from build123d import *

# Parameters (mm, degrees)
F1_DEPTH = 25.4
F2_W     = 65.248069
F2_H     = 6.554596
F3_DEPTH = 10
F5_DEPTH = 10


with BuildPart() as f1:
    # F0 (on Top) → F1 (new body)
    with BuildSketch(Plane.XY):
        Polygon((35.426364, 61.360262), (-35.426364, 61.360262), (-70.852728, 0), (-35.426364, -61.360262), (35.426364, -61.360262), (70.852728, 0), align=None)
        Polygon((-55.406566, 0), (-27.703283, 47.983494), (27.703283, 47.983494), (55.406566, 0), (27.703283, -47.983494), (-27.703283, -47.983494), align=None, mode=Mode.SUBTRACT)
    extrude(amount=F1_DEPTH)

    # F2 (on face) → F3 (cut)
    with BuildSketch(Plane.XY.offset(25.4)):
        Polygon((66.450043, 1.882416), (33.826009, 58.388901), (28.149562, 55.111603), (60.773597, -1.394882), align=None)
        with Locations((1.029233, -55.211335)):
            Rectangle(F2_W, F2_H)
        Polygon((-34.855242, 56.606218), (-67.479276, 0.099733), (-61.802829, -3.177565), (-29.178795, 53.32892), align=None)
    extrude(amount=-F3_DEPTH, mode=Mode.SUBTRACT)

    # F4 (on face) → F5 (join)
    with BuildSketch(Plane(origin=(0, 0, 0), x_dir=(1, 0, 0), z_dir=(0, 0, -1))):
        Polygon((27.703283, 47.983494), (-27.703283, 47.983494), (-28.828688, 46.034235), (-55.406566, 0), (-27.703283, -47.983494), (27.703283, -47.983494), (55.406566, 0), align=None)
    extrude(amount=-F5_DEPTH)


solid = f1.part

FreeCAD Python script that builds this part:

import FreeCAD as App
import Part
import Sketcher

V = App.Vector
Q = App.Units.Quantity

doc = App.newDocument("Part")
body = doc.addObject("PartDesign::Body", "Body")

# Sketch on XY plane
sketch1 = body.newObject("Sketcher::SketchObject", "Sketch")
sketch1.AttachmentSupport = (doc.getObject("XY_Plane"), [""])
sketch1.MapMode = "FlatFace"
sketch1.addGeometry(Part.LineSegment(V(35.426364, 61.360262, 0), V(-35.426364, 61.360262, 0)), False)
sketch1.addGeometry(Part.LineSegment(V(-35.426364, 61.360262, 0), V(-70.852728, 0, 0)), False)
sketch1.addGeometry(Part.LineSegment(V(-70.852728, 0, 0), V(-35.426364, -61.360262, 0)), False)
sketch1.addGeometry(Part.LineSegment(V(-35.426364, -61.360262, 0), V(35.426364, -61.360262, 0)), False)
sketch1.addGeometry(Part.LineSegment(V(35.426364, -61.360262, 0), V(70.852728, 0, 0)), False)
sketch1.addGeometry(Part.LineSegment(V(70.852728, 0, 0), V(35.426364, 61.360262, 0)), False)
sketch1.addGeometry(Part.LineSegment(V(-27.703283, -47.983494, 0), V(-55.406566, 0, 0)), False)
sketch1.addGeometry(Part.LineSegment(V(-55.406566, 0, 0), V(-27.703283, 47.983494, 0)), False)
sketch1.addGeometry(Part.LineSegment(V(-27.703283, 47.983494, 0), V(27.703283, 47.983494, 0)), False)
sketch1.addGeometry(Part.LineSegment(V(27.703283, 47.983494, 0), V(55.406566, 0, 0)), False)
sketch1.addGeometry(Part.LineSegment(V(55.406566, 0, 0), V(27.703283, -47.983494, 0)), False)
sketch1.addGeometry(Part.LineSegment(V(27.703283, -47.983494, 0), V(-27.703283, -47.983494, 0)), False)
sketch1.addConstraint(Sketcher.Constraint("Coincident", 0, 2, 1, 1))
sketch1.addConstraint(Sketcher.Constraint("Coincident", 1, 2, 2, 1))
sketch1.addConstraint(Sketcher.Constraint("Coincident", 2, 2, 3, 1))
sketch1.addConstraint(Sketcher.Constraint("Coincident", 3, 2, 4, 1))
sketch1.addConstraint(Sketcher.Constraint("Coincident", 4, 2, 5, 1))
sketch1.addConstraint(Sketcher.Constraint("Coincident", 5, 2, 0, 1))
sketch1.addConstraint(Sketcher.Constraint("Coincident", 6, 2, 7, 1))
sketch1.addConstraint(Sketcher.Constraint("Coincident", 7, 2, 8, 1))
sketch1.addConstraint(Sketcher.Constraint("Coincident", 8, 2, 9, 1))
sketch1.addConstraint(Sketcher.Constraint("Coincident", 9, 2, 10, 1))
sketch1.addConstraint(Sketcher.Constraint("Coincident", 10, 2, 11, 1))
sketch1.addConstraint(Sketcher.Constraint("Coincident", 11, 2, 6, 1))
sketch1.addConstraint(Sketcher.Constraint("Horizontal", 0))
sketch1.addConstraint(Sketcher.Constraint("Horizontal", 3))
sketch1.addConstraint(Sketcher.Constraint("Horizontal", 8))
sketch1.addConstraint(Sketcher.Constraint("Horizontal", 11))
sketch1.addConstraint(Sketcher.Constraint("Symmetric", 0, 2, 3, 2, -1, 1))
sketch1.addConstraint(Sketcher.Constraint("Symmetric", 1, 2, 4, 2, -1, 1))
sketch1.addConstraint(Sketcher.Constraint("Symmetric", 6, 2, 9, 2, -1, 1))
sketch1.addConstraint(Sketcher.Constraint("Symmetric", 7, 2, 10, 2, -1, 1))
sketch1.addConstraint(Sketcher.Constraint("PointOnObject", 1, 2, -1))
sketch1.addConstraint(Sketcher.Constraint("PointOnObject", 6, 2, -1))
sketch1.addConstraint(Sketcher.Constraint("Parallel", 2, 5))
sketch1.addConstraint(Sketcher.Constraint("Parallel", 5, 6))
sketch1.addConstraint(Sketcher.Constraint("Parallel", 4, 7))
sketch1.addConstraint(Sketcher.Constraint("Parallel", 6, 9))
sketch1.addConstraint(Sketcher.Constraint("Vertical", 0, 2, 2, 2))
sketch1.addConstraint(Sketcher.Constraint("Angle", 1, Q("-120 deg")))
sketch1.addConstraint(Sketcher.Constraint("DistanceX", 0, 2, 0, 1, Q("70.852728 mm")))
sketch1.addConstraint(Sketcher.Constraint("DistanceX", 6, 2, 0, 2, Q("19.980202 mm")))
sketch1.addConstraint(Sketcher.Constraint("DistanceX", 8, 1, 8, 2, Q("55.406566 mm")))
sketch1.addConstraint(Sketcher.Constraint("DistanceX", 1, 2, -1, 1, Q("70.852728 mm")))
pad1 = body.newObject("PartDesign::Pad", "Pad")
pad1.Profile = sketch1
pad1.Length = 25.4

# Sketch on XY plane
sketch2 = body.newObject("Sketcher::SketchObject", "Sketch001")
sketch2.AttachmentSupport = (doc.getObject("XY_Plane"), [""])
sketch2.MapMode = "FlatFace"
sketch2.AttachmentOffset = App.Placement(V(0, 0, 25.4), App.Rotation())
sketch2.addGeometry(Part.LineSegment(V(66.450043, 1.882416, 0), V(33.826009, 58.388901, 0)), False)
sketch2.addGeometry(Part.LineSegment(V(33.826009, 58.388901, 0), V(28.149562, 55.111603, 0)), False)
sketch2.addGeometry(Part.LineSegment(V(28.149562, 55.111603, 0), V(60.773597, -1.394882, 0)), False)
sketch2.addGeometry(Part.LineSegment(V(60.773597, -1.394882, 0), V(66.450043, 1.882416, 0)), False)
sketch2.addGeometry(Part.LineSegment(V(-31.594801, -51.934037, 0), V(-31.594801, -58.488633, 0)), False)
sketch2.addGeometry(Part.LineSegment(V(-31.594801, -58.488633, 0), V(33.653267, -58.488633, 0)), False)
sketch2.addGeometry(Part.LineSegment(V(33.653267, -58.488633, 0), V(33.653267, -51.934037, 0)), False)
sketch2.addGeometry(Part.LineSegment(V(33.653267, -51.934037, 0), V(-31.594801, -51.934037, 0)), False)
sketch2.addGeometry(Part.LineSegment(V(-34.855242, 56.606218, 0), V(-67.479276, 0.099733, 0)), False)
sketch2.addGeometry(Part.LineSegment(V(-67.479276, 0.099733, 0), V(-61.802829, -3.177565, 0)), False)
sketch2.addGeometry(Part.LineSegment(V(-61.802829, -3.177565, 0), V(-29.178795, 53.32892, 0)), False)
sketch2.addGeometry(Part.LineSegment(V(-29.178795, 53.32892, 0), V(-34.855242, 56.606218, 0)), False)
sketch2.addConstraint(Sketcher.Constraint("Coincident", 0, 2, 1, 1))
sketch2.addConstraint(Sketcher.Constraint("Coincident", 1, 2, 2, 1))
sketch2.addConstraint(Sketcher.Constraint("Coincident", 2, 2, 3, 1))
sketch2.addConstraint(Sketcher.Constraint("Coincident", 3, 2, 0, 1))
sketch2.addConstraint(Sketcher.Constraint("Coincident", 4, 2, 5, 1))
sketch2.addConstraint(Sketcher.Constraint("Coincident", 5, 2, 6, 1))
sketch2.addConstraint(Sketcher.Constraint("Coincident", 6, 2, 7, 1))
sketch2.addConstraint(Sketcher.Constraint("Coincident", 7, 2, 4, 1))
sketch2.addConstraint(Sketcher.Constraint("Coincident", 8, 2, 9, 1))
sketch2.addConstraint(Sketcher.Constraint("Coincident", 9, 2, 10, 1))
sketch2.addConstraint(Sketcher.Constraint("Coincident", 10, 2, 11, 1))
sketch2.addConstraint(Sketcher.Constraint("Coincident", 11, 2, 8, 1))
sketch2.addConstraint(Sketcher.Constraint("Vertical", 4))
sketch2.addConstraint(Sketcher.Constraint("Horizontal", 5))
sketch2.addConstraint(Sketcher.Constraint("Vertical", 6))
sketch2.addConstraint(Sketcher.Constraint("Horizontal", 7))
sketch2.addConstraint(Sketcher.Constraint("Perpendicular", 0, 1))
sketch2.addConstraint(Sketcher.Constraint("Perpendicular", 1, 2))
sketch2.addConstraint(Sketcher.Constraint("Perpendicular", 2, 3))
sketch2.addConstraint(Sketcher.Constraint("Perpendicular", 8, 9))
sketch2.addConstraint(Sketcher.Constraint("Perpendicular", 9, 10))
sketch2.addConstraint(Sketcher.Constraint("Perpendicular", 10, 11))
sketch2.addConstraint(Sketcher.Constraint("Equal", 2, 8))
sketch2.addConstraint(Sketcher.Constraint("Equal", 3, 9))
sketch2.addConstraint(Sketcher.Constraint("Angle", 0, Q("120 deg")))
sketch2.addConstraint(Sketcher.Constraint("Angle", 8, Q("-120 deg")))
sketch2.addConstraint(Sketcher.Constraint("DistanceX", 5, 1, 5, 2, Q("65.248069 mm")))
sketch2.addConstraint(Sketcher.Constraint("DistanceY", -1, 1, 0, 2, Q("58.388901 mm")))
sketch2.addConstraint(Sketcher.Constraint("DistanceX", 4, 2, -1, 1, Q("31.594801 mm")))
sketch2.addConstraint(Sketcher.Constraint("DistanceY", 2, 2, 3, 2, Q("3.277298 mm")))
sketch2.addConstraint(Sketcher.Constraint("DistanceX", 4, 2, 2, 2, Q("92.368398 mm")))
sketch2.addConstraint(Sketcher.Constraint("Distance", 0, Q("65.248068 mm")))
sketch2.addConstraint(Sketcher.Constraint("DistanceY", 4, 2, 4, 1, Q("6.554596 mm")))
sketch2.addConstraint(Sketcher.Constraint("DistanceX", 9, 2, -1, 1, Q("61.802829 mm")))
sketch2.addConstraint(Sketcher.Constraint("DistanceY", -1, 1, 10, 2, Q("53.32892 mm")))
sketch2.addConstraint(Sketcher.Constraint("DistanceY", 4, 2, 2, 2, Q("57.093751 mm")))
pocket1 = body.newObject("PartDesign::Pocket", "Pocket")
pocket1.Profile = sketch2
pocket1.Length = 10

# Sketch on XY plane
sketch3 = body.newObject("Sketcher::SketchObject", "Sketch002")
sketch3.AttachmentSupport = (doc.getObject("XY_Plane"), [""])
sketch3.MapMode = "FlatFace"
sketch3.addGeometry(Part.LineSegment(V(27.703283, -47.983494, 0), V(-27.703283, -47.983494, 0)), False)
sketch3.addGeometry(Part.LineSegment(V(-27.703283, -47.983494, 0), V(-28.828688, -46.034235, 0)), False)
sketch3.addGeometry(Part.LineSegment(V(-28.828688, -46.034235, 0), V(-55.406566, 0, 0)), False)
sketch3.addGeometry(Part.LineSegment(V(-55.406566, 0, 0), V(-27.703283, 47.983494, 0)), False)
sketch3.addGeometry(Part.LineSegment(V(-27.703283, 47.983494, 0), V(27.703283, 47.983494, 0)), False)
sketch3.addGeometry(Part.LineSegment(V(27.703283, 47.983494, 0), V(55.406566, 0, 0)), False)
sketch3.addGeometry(Part.LineSegment(V(55.406566, 0, 0), V(27.703283, -47.983494, 0)), False)
sketch3.addConstraint(Sketcher.Constraint("Coincident", 0, 2, 1, 1))
sketch3.addConstraint(Sketcher.Constraint("Coincident", 1, 2, 2, 1))
sketch3.addConstraint(Sketcher.Constraint("Coincident", 2, 2, 3, 1))
sketch3.addConstraint(Sketcher.Constraint("Coincident", 3, 2, 4, 1))
sketch3.addConstraint(Sketcher.Constraint("Coincident", 4, 2, 5, 1))
sketch3.addConstraint(Sketcher.Constraint("Coincident", 5, 2, 6, 1))
sketch3.addConstraint(Sketcher.Constraint("Coincident", 6, 2, 0, 1))
sketch3.addConstraint(Sketcher.Constraint("Horizontal", 0))
sketch3.addConstraint(Sketcher.Constraint("Horizontal", 4))
sketch3.addConstraint(Sketcher.Constraint("Symmetric", 0, 2, 4, 2, -1, 1))
sketch3.addConstraint(Sketcher.Constraint("Symmetric", 2, 2, 5, 2, -1, 1))
sketch3.addConstraint(Sketcher.Constraint("PointOnObject", 2, 2, -1))
sketch3.addConstraint(Sketcher.Constraint("Parallel", 1, 2))
sketch3.addConstraint(Sketcher.Constraint("Parallel", 3, 6))
sketch3.addConstraint(Sketcher.Constraint("Vertical", 0, 2, 3, 2))
sketch3.addConstraint(Sketcher.Constraint("Angle", 1, Q("119.999995 deg")))
sketch3.addConstraint(Sketcher.Constraint("Distance", 1, Q("2.25081 mm")))
sketch3.addConstraint(Sketcher.Constraint("DistanceX", 0, 2, 0, 1, Q("55.406566 mm")))
sketch3.addConstraint(Sketcher.Constraint("DistanceY", 1, 2, 3, 2, Q("94.017729 mm")))
pad2 = body.newObject("PartDesign::Pad", "Pad001")
pad2.Profile = sketch3
pad2.Length = 10

doc.recompute()
